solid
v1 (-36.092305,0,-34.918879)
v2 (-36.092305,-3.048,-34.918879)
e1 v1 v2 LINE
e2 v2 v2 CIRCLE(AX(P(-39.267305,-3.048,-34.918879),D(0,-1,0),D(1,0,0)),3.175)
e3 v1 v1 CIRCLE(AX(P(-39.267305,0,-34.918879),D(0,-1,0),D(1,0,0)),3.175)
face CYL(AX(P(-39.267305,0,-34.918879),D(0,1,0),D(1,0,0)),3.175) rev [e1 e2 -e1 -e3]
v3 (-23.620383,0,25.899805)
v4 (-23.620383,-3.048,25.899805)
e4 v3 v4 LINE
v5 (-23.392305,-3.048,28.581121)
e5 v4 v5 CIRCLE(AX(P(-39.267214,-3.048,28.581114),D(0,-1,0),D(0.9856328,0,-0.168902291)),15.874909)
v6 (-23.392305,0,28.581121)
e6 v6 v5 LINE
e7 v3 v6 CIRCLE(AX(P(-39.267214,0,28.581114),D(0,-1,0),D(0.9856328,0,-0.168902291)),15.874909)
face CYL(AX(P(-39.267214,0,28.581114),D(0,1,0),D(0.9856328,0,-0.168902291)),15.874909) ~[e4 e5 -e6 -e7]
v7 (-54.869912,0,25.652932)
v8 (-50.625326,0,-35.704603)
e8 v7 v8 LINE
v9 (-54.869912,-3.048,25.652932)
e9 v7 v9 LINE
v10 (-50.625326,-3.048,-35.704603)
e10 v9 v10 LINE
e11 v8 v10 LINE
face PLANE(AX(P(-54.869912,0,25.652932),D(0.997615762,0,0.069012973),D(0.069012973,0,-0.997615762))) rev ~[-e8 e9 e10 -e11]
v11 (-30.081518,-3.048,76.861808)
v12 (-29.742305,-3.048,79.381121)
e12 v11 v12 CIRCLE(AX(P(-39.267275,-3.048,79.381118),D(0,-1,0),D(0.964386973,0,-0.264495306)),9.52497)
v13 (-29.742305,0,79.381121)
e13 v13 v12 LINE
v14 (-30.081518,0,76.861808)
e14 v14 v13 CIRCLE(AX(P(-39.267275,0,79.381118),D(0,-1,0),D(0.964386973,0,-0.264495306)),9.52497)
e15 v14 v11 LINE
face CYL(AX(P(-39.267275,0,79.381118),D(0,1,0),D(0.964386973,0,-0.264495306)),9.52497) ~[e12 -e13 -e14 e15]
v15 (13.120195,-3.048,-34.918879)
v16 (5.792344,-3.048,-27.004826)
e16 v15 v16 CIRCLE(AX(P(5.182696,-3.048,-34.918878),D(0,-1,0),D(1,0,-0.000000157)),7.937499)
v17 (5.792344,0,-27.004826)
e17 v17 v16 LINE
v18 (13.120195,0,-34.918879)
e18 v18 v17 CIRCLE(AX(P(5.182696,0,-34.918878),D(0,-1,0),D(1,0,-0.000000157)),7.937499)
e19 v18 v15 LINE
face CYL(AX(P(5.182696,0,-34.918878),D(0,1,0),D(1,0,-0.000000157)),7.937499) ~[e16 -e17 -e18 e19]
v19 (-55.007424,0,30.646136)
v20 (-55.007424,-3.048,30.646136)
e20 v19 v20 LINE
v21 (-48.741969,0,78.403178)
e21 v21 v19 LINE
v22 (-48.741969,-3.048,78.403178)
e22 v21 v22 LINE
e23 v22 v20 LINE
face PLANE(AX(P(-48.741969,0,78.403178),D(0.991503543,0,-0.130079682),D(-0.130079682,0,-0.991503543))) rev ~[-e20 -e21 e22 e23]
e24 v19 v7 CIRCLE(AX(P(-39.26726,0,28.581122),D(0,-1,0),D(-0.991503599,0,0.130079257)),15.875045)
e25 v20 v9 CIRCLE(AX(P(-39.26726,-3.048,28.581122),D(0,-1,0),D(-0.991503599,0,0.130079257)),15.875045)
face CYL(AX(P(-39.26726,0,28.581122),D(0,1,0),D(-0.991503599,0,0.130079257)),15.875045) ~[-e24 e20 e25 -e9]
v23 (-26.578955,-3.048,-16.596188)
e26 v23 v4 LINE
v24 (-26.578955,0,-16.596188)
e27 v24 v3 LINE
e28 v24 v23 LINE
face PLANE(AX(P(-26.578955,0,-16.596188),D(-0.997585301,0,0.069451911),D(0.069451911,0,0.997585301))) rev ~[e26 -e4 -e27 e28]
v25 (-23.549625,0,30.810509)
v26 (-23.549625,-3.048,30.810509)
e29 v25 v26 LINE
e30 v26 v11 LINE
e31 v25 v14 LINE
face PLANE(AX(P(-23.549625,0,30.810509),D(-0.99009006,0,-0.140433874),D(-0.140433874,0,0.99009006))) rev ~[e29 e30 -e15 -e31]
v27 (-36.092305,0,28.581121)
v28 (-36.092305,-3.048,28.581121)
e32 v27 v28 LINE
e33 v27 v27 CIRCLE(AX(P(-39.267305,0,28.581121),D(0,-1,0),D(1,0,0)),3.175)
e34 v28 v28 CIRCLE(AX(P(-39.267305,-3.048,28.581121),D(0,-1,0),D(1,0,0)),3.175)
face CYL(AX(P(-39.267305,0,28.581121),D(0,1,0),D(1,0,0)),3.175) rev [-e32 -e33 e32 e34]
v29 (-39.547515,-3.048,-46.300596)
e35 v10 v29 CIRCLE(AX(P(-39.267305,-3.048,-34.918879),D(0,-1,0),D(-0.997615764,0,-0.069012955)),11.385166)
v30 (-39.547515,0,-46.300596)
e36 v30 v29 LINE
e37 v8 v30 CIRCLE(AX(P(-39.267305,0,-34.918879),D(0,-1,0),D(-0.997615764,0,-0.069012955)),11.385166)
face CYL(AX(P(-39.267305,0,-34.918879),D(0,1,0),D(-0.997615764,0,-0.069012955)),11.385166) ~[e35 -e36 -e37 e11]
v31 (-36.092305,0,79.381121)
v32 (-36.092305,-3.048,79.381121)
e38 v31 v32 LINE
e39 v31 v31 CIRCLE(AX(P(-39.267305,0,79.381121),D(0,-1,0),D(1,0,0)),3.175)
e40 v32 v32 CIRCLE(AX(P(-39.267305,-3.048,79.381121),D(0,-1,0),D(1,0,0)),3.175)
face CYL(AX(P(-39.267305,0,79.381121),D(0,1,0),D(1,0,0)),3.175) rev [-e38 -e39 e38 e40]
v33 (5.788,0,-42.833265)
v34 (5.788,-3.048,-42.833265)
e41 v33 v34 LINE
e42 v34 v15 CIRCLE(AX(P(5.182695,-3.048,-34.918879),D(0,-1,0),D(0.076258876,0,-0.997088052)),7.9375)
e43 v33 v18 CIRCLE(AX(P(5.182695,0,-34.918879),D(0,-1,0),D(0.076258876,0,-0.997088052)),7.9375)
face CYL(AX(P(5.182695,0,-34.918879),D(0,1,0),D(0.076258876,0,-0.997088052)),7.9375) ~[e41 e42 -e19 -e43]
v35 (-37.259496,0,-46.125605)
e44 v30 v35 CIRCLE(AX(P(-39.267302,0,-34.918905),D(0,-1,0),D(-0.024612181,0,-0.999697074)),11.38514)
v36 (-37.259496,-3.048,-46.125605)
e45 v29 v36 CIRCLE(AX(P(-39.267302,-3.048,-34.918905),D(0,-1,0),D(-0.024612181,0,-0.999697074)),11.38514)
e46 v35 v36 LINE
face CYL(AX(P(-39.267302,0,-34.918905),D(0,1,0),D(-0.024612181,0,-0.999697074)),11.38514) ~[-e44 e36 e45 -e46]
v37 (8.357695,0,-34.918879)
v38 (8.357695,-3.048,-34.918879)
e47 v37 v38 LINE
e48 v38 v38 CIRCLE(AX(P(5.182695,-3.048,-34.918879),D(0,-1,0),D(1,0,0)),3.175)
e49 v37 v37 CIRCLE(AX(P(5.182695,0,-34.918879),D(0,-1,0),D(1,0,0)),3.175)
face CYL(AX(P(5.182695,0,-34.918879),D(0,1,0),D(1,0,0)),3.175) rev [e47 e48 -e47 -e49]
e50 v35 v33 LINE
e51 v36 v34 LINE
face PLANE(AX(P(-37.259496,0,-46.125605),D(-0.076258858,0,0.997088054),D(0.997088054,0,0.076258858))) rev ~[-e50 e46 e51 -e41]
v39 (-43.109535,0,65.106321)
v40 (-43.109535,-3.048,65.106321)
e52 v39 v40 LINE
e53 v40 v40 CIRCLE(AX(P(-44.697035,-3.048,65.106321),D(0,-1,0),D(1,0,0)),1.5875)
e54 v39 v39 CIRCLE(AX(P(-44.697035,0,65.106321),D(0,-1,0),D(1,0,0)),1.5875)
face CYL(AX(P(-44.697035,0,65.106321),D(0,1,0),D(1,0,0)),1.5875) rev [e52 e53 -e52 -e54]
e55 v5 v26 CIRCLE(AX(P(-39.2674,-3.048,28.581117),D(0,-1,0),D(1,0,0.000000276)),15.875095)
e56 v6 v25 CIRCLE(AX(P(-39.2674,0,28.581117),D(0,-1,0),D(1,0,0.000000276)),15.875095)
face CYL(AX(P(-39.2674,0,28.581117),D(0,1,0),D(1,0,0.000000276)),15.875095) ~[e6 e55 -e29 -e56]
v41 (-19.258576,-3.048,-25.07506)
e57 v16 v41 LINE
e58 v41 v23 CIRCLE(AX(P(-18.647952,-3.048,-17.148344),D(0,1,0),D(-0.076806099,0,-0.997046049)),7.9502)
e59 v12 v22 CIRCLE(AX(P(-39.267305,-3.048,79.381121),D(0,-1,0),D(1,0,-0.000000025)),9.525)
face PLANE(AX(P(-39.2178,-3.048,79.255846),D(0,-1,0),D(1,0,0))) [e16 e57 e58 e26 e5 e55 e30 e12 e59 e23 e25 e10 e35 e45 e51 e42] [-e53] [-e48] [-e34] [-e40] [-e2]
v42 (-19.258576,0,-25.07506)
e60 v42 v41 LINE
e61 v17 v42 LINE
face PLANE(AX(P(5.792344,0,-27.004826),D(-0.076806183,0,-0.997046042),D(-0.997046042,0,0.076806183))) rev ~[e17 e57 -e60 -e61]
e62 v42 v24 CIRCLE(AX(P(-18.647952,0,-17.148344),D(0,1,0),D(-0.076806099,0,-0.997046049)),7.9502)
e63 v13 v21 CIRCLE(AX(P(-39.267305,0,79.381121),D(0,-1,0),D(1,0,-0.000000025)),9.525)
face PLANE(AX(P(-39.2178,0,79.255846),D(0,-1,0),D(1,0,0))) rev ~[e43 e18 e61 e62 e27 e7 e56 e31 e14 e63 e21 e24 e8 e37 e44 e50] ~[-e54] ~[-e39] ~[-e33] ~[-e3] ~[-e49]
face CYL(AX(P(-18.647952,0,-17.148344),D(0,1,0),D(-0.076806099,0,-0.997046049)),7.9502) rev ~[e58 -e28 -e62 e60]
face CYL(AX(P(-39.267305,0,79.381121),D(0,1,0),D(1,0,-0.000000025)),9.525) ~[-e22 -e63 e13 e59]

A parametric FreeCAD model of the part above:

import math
import FreeCAD as App
import Part
import Sketcher

V = App.Vector
Q = App.Units.Quantity

doc = App.newDocument("Part")
params = doc.addObject("Spreadsheet::Sheet", "Params")
for row, (alias, value) in enumerate([
    ("sketch1_diameter", "0.25 in"),
    ("sketch1_diameter2", "0.25 in"),
    ("sketch1_diameter3", "0.25 in"),
    ("sketch1_diameter4", "0.25 in"),
    ("sketch1_diameter5", "0.125 in"),
    ("pad1_length", "0.12 in"),
], start=1):
    params.set(f"A{row}", alias)
    params.set(f"B{row}", "=" + value)
    params.setAlias(f"B{row}", alias)

body = doc.addObject("PartDesign::Body", "Body")

sketch1 = body.newObject("Sketcher::SketchObject", "Sketch")
sketch1.AttachmentSupport = (doc.getObject("XZ_Plane"), [""])
sketch1.MapMode = "FlatFace"
sketch1.addGeometry([
    Part.ArcOfCircle(Part.Circle(V(-39.267275, 79.381118, 0), V(0, 0, 1), 9.52497), math.radians(-15.336966), math.radians(0.00002)),
    Part.ArcOfCircle(Part.Circle(V(-39.267305, 79.381121, 0), V(0, 0, 1), 9.525), math.radians(-0.000001), math.radians(185.893011)),
    Part.LineSegment(V(-48.741969, 78.403178, 0), V(-55.007424, 30.646136, 0)),
    Part.ArcOfCircle(Part.Circle(V(-39.26726, 28.581122, 0), V(0, 0, 1), 15.875045), math.radians(172.525828), math.radians(190.629207)),
    Part.LineSegment(V(-54.869912, 25.652932, 0), V(-50.625326, -35.704603, 0)),
    Part.ArcOfCircle(Part.Circle(V(-39.267305, -34.918879, 0), V(0, 0, 1), 11.385166), math.radians(-176.042703), math.radians(-91.410296)),
    Part.ArcOfCircle(Part.Circle(V(-39.267302, -34.918905, 0), V(0, 0, 1), 11.38514), math.radians(-91.410317), math.radians(-79.842584)),
    Part.LineSegment(V(-37.259496, -46.125605, 0), V(5.788, -42.833265, 0)),
    Part.ArcOfCircle(Part.Circle(V(5.182695, -34.918879, 0), V(0, 0, 1), 7.9375), math.radians(-85.626442), math.radians(-0.000002)),
    Part.ArcOfCircle(Part.Circle(V(5.182696, -34.918878, 0), V(0, 0, 1), 7.937499), math.radians(-0.000009), math.radians(85.595001)),
    Part.LineSegment(V(5.792344, -27.004826, 0), V(-19.258576, -25.07506, 0)),
    Part.ArcOfCircle(Part.Circle(V(-18.647952, -17.148344, 0), V(0, 0, 1), 7.9502), math.radians(176.017495), math.radians(265.594996)),
    Part.LineSegment(V(-26.578955, -16.596188, 0), V(-23.620383, 25.899805, 0)),
    Part.ArcOfCircle(Part.Circle(V(-39.267214, 28.581114, 0), V(0, 0, 1), 15.874909), math.radians(-9.724002), math.radians(0.000027)),
    Part.ArcOfCircle(Part.Circle(V(-39.2674, 28.581117, 0), V(0, 0, 1), 15.875095), math.radians(0.000016), math.radians(8.072922)),
    Part.LineSegment(V(-23.549625, 30.810509, 0), V(-30.081518, 76.861808, 0)),
    Part.Circle(V(-39.267305, -34.918879, 0), V(0, 0, 1), 3.175),
    Part.Circle(V(5.182695, -34.918879, 0), V(0, 0, 1), 3.175),
    Part.Circle(V(-39.267305, 28.581121, 0), V(0, 0, 1), 3.175),
    Part.Circle(V(-44.697035, 65.106321, 0), V(0, 0, 1), 1.5875),
    Part.Circle(V(-39.267305, 79.381121, 0), V(0, 0, 1), 3.175),
], False)
sketch1.addConstraint([
    Sketcher.Constraint("Coincident", 0, 2, 1, 1),
    Sketcher.Constraint("Coincident", 1, 2, 2, 1),
    Sketcher.Constraint("Coincident", 2, 2, 3, 1),
    Sketcher.Constraint("Coincident", 3, 2, 4, 1),
    Sketcher.Constraint("Coincident", 4, 2, 5, 1),
    Sketcher.Constraint("Coincident", 5, 2, 6, 1),
    Sketcher.Constraint("Coincident", 6, 2, 7, 1),
    Sketcher.Constraint("Coincident", 7, 2, 8, 1),
    Sketcher.Constraint("Coincident", 8, 2, 9, 1),
    Sketcher.Constraint("Coincident", 9, 2, 10, 1),
    Sketcher.Constraint("Coincident", 10, 2, 11, 2),
    Sketcher.Constraint("Coincident", 11, 1, 12, 1),
    Sketcher.Constraint("Coincident", 12, 2, 13, 1),
    Sketcher.Constraint("Coincident", 13, 2, 14, 1),
    Sketcher.Constraint("Coincident", 14, 2, 15, 1),
    Sketcher.Constraint("Coincident", 15, 2, 0, 1),
    Sketcher.Constraint("Coincident", 9, 3, 8, 3),
    Sketcher.Constraint("Coincident", 16, 3, 5, 3),
    Sketcher.Constraint("Coincident", 17, 3, 8, 3),
    Sketcher.Constraint("Coincident", 20, 3, 1, 3),
    Sketcher.Constraint("Diameter", 16, Q("0.25 in")),
    Sketcher.Constraint("Diameter", 17, Q("0.25 in")),
    Sketcher.Constraint("Diameter", 18, Q("0.25 in")),
    Sketcher.Constraint("Diameter", 20, Q("0.25 in")),
    Sketcher.Constraint("Diameter", 19, Q("0.125 in")),
    Sketcher.Constraint("Radius", 1, Q("0.375 in")),
    Sketcher.Constraint("Radius", 8, Q("0.3125 in")),
    Sketcher.Constraint("Radius", 11, Q("0.313 in")),
    Sketcher.Constraint("DistanceY", 3, 3, 0, 3, Q("1.9999998 in")),
    Sketcher.Constraint("DistanceY", 3, 3, 1, 3, Q("2 in")),
    Sketcher.Constraint("DistanceY", 13, 3, 0, 3, Q("2.0000002 in")),
    Sketcher.Constraint("DistanceY", 14, 3, 0, 3, Q("2 in")),
    Sketcher.Constraint("DistanceY", 18, 3, 0, 3, Q("1.9999999 in")),
    Sketcher.Constraint("DistanceY", 5, 3, 3, 3, Q("2.5 in")),
    Sketcher.Constraint("DistanceY", 8, 3, 3, 3, Q("2.5 in")),
    Sketcher.Constraint("DistanceX", 6, 3, 8, 3, Q("1.7499999 in")),
    Sketcher.Constraint("DistanceX", 5, 3, 8, 3, Q("1.75 in")),
    Sketcher.Constraint("DistanceX", 1, 3, 8, 3, Q("1.75 in")),
    Sketcher.Constraint("Radius", 0, Q("9.52497 mm")),
    Sketcher.Constraint("Radius", 6, Q("11.38514 mm")),
    Sketcher.Constraint("Radius", 13, Q("15.874909 mm")),
    Sketcher.Constraint("DistanceY", 19, 3, 1, 3, Q("0.562 in")),
    Sketcher.Constraint("DistanceY", 19, 3, 0, 2, Q("0.562 in")),
    Sketcher.Constraint("DistanceX", 18, 3, 13, 2, Q("0.625 in")),
    Sketcher.Constraint("Radius", 3, Q("15.875045 mm")),
    Sketcher.Constraint("Radius", 5, Q("11.385166 mm")),
    Sketcher.Constraint("Radius", 14, Q("15.875095 mm")),
    Sketcher.Constraint("DistanceY", 14, 3, 2, 2, Q("0.0813 in")),
    Sketcher.Constraint("DistanceX", 6, 3, -1, 1, Q("39.267302 mm")),
    Sketcher.Constraint("DistanceX", 14, 3, -1, 1, Q("39.2674 mm")),
    Sketcher.Constraint("DistanceX", -1, 1, 7, 2, Q("5.788 mm")),
    Sketcher.Constraint("DistanceY", 6, 2, 6, 3, Q("11.2067 mm")),
    Sketcher.Constraint("DistanceY", 6, 2, 4, 2, Q("10.421002 mm")),
    Sketcher.Constraint("Distance", 10, Q("25.125139 mm")),
    Sketcher.Constraint("DistanceY", -1, 1, 1, 3, Q("79.381121 mm")),
    Sketcher.Constraint("DistanceX", 3, 3, -1, 1, Q("39.26726 mm")),
    Sketcher.Constraint("DistanceX", 1, 2, -1, 1, Q("48.741969 mm")),
    Sketcher.Constraint("DistanceY", -1, 1, 3, 2, Q("25.652932 mm")),
    Sketcher.Constraint("DistanceY", 8, 2, -1, 1, Q("34.918879 mm")),
    Sketcher.Constraint("DistanceY", 10, 2, -1, 1, Q("25.07506 mm")),
    Sketcher.Constraint("DistanceY", 11, 1, -1, 1, Q("16.596188 mm")),
    Sketcher.Constraint("DistanceY", -1, 1, 13, 2, Q("28.581121 mm")),
    Sketcher.Constraint("DistanceY", -1, 1, 14, 2, Q("30.810509 mm")),
    Sketcher.Constraint("DistanceX", 6, 3, 11, 3, Q("20.61935 mm")),
    Sketcher.Constraint("DistanceY", 6, 3, 11, 3, Q("17.770561 mm")),
    Sketcher.Constraint("DistanceX", 19, 3, 1, 3, Q("5.42973 mm")),
    Sketcher.Constraint("DistanceY", 5, 2, 6, 3, Q("11.381691 mm")),
    Sketcher.Constraint("DistanceX", 13, 3, 12, 2, Q("15.646831 mm")),
    Sketcher.Constraint("DistanceY", 15, 2, 0, 3, Q("2.51931 mm")),
])
sketch1.setExpression("Constraints[20]", "Params.sketch1_diameter")
sketch1.setExpression("Constraints[21]", "Params.sketch1_diameter2")
sketch1.setExpression("Constraints[22]", "Params.sketch1_diameter3")
sketch1.setExpression("Constraints[23]", "Params.sketch1_diameter4")
sketch1.setExpression("Constraints[24]", "Params.sketch1_diameter5")
pad1 = body.newObject("PartDesign::Pad", "Pad")
pad1.Profile = sketch1
pad1.setExpression("Length", "Params.pad1_length")

doc.recompute()
